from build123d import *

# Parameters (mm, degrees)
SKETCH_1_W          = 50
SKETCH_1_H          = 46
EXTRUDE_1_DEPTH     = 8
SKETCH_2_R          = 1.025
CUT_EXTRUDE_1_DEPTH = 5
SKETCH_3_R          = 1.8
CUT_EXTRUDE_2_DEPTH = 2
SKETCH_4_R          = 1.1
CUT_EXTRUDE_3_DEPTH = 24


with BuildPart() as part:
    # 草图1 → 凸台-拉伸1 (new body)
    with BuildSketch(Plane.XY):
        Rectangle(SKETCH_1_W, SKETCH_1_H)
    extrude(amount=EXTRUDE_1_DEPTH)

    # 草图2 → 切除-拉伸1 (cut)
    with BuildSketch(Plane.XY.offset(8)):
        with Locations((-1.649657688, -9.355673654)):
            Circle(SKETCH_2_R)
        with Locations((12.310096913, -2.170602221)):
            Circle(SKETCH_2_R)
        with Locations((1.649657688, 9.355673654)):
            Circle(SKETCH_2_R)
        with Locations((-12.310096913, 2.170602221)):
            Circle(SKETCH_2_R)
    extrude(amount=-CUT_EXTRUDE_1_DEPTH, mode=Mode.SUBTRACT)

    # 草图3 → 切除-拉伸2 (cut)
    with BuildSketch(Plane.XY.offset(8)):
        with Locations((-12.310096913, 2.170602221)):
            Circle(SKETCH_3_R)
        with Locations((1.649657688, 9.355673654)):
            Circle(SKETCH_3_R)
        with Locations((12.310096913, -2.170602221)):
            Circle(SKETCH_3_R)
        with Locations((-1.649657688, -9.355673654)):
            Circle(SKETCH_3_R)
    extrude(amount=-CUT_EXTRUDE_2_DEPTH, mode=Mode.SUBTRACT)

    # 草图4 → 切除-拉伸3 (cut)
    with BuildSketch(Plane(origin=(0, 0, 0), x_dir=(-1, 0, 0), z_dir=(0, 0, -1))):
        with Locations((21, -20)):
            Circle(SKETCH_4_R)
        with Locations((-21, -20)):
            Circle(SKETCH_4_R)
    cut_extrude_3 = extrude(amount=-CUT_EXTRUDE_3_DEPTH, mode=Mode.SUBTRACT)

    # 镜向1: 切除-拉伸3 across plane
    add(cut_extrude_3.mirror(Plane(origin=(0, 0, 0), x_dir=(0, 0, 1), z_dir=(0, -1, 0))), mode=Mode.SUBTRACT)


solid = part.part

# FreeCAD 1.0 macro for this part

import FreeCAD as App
import Part
import Sketcher
from FreeCAD import Vector


def add_polygon(sketch, points):
    """Adds a closed chain of lines whose ends are joined by coincident constraints."""
    first, n = sketch.GeometryCount, len(points)
    for a, b in zip(points, points[1:] + points[:1]):
        sketch.addGeometry(Part.LineSegment(App.Vector(*a, 0), App.Vector(*b, 0)), False)
    for i in range(n):
        sketch.addConstraint(Sketcher.Constraint("Coincident", first + i, 2, first + (i + 1) % n, 1))

doc = App.newDocument("Part")
body = doc.addObject("PartDesign::Body", "Body")

# Sketch on XY plane
sketch1 = body.newObject("Sketcher::SketchObject", "Sketch")
sketch1.AttachmentSupport = (doc.getObject("XY_Plane"), [""])
sketch1.MapMode = "FlatFace"
add_polygon(sketch1, [(-25, 23), (-25, -23), (25, -23), (25, 23)])  # lines 0-3
sketch1.addConstraint([
    Sketcher.Constraint("Vertical", 0),
    Sketcher.Constraint("Horizontal", 1),
    Sketcher.Constraint("Vertical", 2),
    Sketcher.Constraint("Horizontal", 3),
    Sketcher.Constraint("Symmetric", 0, 2, 2, 2, -1, 1),
    Sketcher.Constraint("DistanceX", 1, 1, 1, 2, 50.0),
    Sketcher.Constraint("DistanceY", 0, 2, 0, 1, 46.0),
])
pad1 = body.newObject("PartDesign::Pad", "Pad")
pad1.Profile = sketch1
pad1.Length = 8

# Sketch on XY plane
sketch2 = body.newObject("Sketcher::SketchObject", "Sketch001")
sketch2.AttachmentSupport = (doc.getObject("XY_Plane"), [""])
sketch2.MapMode = "FlatFace"
sketch2.AttachmentOffset = App.Placement(Vector(0, 0, 8), App.Rotation())
sketch2.addGeometry([
    Part.Circle(Vector(-1.649658, -9.355674, 0), Vector(0, 0, 1), 1.025),
    Part.Circle(Vector(12.310097, -2.170602, 0), Vector(0, 0, 1), 1.025),
    Part.Circle(Vector(1.649658, 9.355674, 0), Vector(0, 0, 1), 1.025),
    Part.Circle(Vector(-12.310097, 2.170602, 0), Vector(0, 0, 1), 1.025),
], False)
sketch2.addConstraint([
    Sketcher.Constraint("Equal", 0, 1),
    Sketcher.Constraint("Equal", 1, 2),
    Sketcher.Constraint("Equal", 2, 3),
    Sketcher.Constraint("Symmetric", 0, 3, 2, 3, -1, 1),
    Sketcher.Constraint("Symmetric", 1, 3, 3, 3, -1, 1),
    Sketcher.Constraint("Diameter", 0, 2.05),
    Sketcher.Constraint("DistanceY", 0, 3, 1, 3, 7.185071),
    Sketcher.Constraint("DistanceX", 2, 3, 1, 3, 10.660439),
    Sketcher.Constraint("DistanceX", 0, 3, -1, 1, 1.649658),
    Sketcher.Constraint("DistanceY", 0, 3, -1, 1, 9.355674),
])
pocket1 = body.newObject("PartDesign::Pocket", "Pocket")
pocket1.Profile = sketch2
pocket1.Length = 5

# Sketch on XY plane
sketch3 = body.newObject("Sketcher::SketchObject", "Sketch002")
sketch3.AttachmentSupport = (doc.getObject("XY_Plane"), [""])
sketch3.MapMode = "FlatFace"
sketch3.AttachmentOffset = App.Placement(Vector(0, 0, 8), App.Rotation())
sketch3.addGeometry([
    Part.Circle(Vector(-12.310097, 2.170602, 0), Vector(0, 0, 1), 1.8),
    Part.Circle(Vector(1.649658, 9.355674, 0), Vector(0, 0, 1), 1.8),
    Part.Circle(Vector(12.310097, -2.170602, 0), Vector(0, 0, 1), 1.8),
    Part.Circle(Vector(-1.649658, -9.355674, 0), Vector(0, 0, 1), 1.8),
], False)
sketch3.addConstraint([
    Sketcher.Constraint("Equal", 0, 1),
    Sketcher.Constraint("Equal", 1, 2),
    Sketcher.Constraint("Equal", 2, 3),
    Sketcher.Constraint("Symmetric", 0, 3, 2, 3, -1, 1),
    Sketcher.Constraint("Symmetric", 1, 3, 3, 3, -1, 1),
    Sketcher.Constraint("Diameter", 0, 3.6),
    Sketcher.Constraint("DistanceY", 0, 3, 1, 3, 7.185071),
    Sketcher.Constraint("DistanceX", 1, 3, 2, 3, 10.660439),
    Sketcher.Constraint("DistanceX", 0, 3, -1, 1, 12.310097),
    Sketcher.Constraint("DistanceY", -1, 1, 0, 3, 2.170602),
])
pocket2 = body.newObject("PartDesign::Pocket", "Pocket001")
pocket2.Profile = sketch3
pocket2.Length = 2

# Sketch on XY plane
sketch4 = body.newObject("Sketcher::SketchObject", "Sketch003")
sketch4.AttachmentSupport = (doc.getObject("XY_Plane"), [""])
sketch4.MapMode = "FlatFace"
sketch4.addGeometry([
    Part.Circle(Vector(-21, -20, 0), Vector(0, 0, 1), 1.1),
    Part.Circle(Vector(21, -20, 0), Vector(0, 0, 1), 1.1),
], False)
sketch4.addConstraint([
    Sketcher.Constraint("Equal", 0, 1),
    Sketcher.Constraint("Symmetric", 0, 3, 1, 3, -2),
    Sketcher.Constraint("Diameter", 0, 2.2),
    Sketcher.Constraint("DistanceX", 0, 3, -1, 1, 21.0),
    Sketcher.Constraint("DistanceY", 0, 3, -1, 1, 20.0),
])
pocket3 = body.newObject("PartDesign::Pocket", "Pocket002")
pocket3.Profile = sketch4
pocket3.Length = 24
pocket3.Reversed = True
doc.recompute()

mirrored = body.newObject("PartDesign::Mirrored", "Mirrored")
mirrored.Originals = [pocket3]
mirrored.MirrorPlane = (doc.getObject("XZ_Plane"), [""])
body.Tip = mirrored

doc.recompute()
